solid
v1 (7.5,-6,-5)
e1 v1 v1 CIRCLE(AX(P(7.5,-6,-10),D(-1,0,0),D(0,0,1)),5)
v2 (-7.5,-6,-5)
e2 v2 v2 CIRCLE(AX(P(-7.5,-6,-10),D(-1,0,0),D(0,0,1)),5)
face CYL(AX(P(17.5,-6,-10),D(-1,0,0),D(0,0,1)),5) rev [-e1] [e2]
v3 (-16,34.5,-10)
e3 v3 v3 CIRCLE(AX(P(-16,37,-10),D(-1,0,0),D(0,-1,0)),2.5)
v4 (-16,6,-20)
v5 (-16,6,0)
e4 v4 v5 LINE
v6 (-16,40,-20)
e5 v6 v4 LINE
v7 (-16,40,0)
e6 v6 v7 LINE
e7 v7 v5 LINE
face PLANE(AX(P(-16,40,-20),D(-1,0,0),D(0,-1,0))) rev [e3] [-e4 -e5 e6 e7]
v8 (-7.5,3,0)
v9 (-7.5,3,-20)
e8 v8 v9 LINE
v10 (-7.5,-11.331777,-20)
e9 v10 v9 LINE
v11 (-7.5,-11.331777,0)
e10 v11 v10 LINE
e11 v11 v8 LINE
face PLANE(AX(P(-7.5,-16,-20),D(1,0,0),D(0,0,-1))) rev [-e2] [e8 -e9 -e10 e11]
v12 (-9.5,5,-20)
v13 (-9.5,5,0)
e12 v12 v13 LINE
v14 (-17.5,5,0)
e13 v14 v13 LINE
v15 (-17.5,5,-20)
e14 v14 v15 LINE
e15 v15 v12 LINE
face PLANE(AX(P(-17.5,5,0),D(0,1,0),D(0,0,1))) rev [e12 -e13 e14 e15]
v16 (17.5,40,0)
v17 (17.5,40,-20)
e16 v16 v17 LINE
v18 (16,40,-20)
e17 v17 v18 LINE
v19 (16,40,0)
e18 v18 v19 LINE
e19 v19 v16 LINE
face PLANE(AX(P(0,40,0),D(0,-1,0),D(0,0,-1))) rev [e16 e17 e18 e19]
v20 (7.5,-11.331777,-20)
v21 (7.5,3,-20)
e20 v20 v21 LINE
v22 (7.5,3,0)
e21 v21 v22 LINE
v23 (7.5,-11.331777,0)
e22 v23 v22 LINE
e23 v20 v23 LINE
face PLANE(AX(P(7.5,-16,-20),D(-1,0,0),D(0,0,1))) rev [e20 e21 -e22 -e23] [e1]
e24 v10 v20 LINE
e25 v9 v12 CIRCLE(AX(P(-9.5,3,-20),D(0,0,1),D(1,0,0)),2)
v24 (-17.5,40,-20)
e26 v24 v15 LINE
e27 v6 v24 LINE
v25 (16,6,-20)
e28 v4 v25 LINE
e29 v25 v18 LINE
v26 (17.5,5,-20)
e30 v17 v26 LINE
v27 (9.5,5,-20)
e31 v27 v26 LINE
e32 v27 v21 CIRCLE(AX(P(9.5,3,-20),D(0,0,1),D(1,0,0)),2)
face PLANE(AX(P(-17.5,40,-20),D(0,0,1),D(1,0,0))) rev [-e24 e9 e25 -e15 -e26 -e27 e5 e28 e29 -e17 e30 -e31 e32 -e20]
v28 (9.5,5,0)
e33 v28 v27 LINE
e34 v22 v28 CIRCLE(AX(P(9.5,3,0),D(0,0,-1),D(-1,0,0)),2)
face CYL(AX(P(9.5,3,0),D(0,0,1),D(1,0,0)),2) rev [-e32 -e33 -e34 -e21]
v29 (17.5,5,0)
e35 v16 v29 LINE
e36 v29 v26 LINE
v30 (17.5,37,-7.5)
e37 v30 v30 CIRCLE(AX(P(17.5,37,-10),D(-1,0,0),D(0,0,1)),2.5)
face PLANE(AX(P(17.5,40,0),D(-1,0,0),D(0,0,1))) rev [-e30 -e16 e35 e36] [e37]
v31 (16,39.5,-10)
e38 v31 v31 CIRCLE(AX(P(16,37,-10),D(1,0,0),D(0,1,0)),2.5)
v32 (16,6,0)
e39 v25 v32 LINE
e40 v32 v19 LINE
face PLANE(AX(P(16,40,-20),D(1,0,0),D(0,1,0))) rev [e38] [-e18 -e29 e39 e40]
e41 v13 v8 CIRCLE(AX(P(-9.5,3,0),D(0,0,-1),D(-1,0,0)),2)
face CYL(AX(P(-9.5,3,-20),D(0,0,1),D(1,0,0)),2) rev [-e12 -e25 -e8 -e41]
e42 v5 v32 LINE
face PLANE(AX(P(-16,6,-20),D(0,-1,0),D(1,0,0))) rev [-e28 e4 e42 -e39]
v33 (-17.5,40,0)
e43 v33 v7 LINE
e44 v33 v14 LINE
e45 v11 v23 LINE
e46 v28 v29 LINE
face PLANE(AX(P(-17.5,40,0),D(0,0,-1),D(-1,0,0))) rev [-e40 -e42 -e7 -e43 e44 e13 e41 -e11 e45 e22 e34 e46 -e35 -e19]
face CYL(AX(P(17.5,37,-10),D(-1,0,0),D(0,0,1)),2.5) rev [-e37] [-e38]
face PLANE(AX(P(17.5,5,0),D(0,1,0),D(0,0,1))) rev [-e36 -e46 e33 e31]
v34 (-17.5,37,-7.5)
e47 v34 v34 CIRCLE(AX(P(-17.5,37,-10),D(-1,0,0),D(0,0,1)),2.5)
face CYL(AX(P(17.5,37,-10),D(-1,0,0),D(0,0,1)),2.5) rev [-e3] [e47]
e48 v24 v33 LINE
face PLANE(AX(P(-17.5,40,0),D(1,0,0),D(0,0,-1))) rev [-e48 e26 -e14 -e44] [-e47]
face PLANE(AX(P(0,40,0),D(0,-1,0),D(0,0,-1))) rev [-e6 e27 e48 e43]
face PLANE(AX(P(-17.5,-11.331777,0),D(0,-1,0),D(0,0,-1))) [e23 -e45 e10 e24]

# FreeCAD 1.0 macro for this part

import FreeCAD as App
import Part
import Sketcher
Q = App.Units.Quantity


def edges_at(feature, points):
    """Names of the edges that pass closest to the given points."""
    edges = feature.Shape.Edges
    near = lambda p: min(range(len(edges)), key=lambda i: edges[i].distToShape(Part.Vertex(*p))[0])
    return sorted({f"Edge{near(p) + 1}" for p in points})

doc = App.newDocument("Part")
body = doc.addObject("PartDesign::Body", "Body")

sketch1 = body.newObject("Sketcher::SketchObject", "Sketch")
sketch1.AttachmentSupport = (doc.getObject("XZ_Plane"), [""])
sketch1.MapMode = "FlatFace"
sketch1.addGeometry(Part.LineSegment(App.Vector(-18, -20, 0), App.Vector(-18, 0, 0)), False)
sketch1.addGeometry(Part.LineSegment(App.Vector(-18, 0, 0), App.Vector(18, 0, 0)), False)
sketch1.addGeometry(Part.LineSegment(App.Vector(18, 0, 0), App.Vector(18, -20, 0)), False)
sketch1.addGeometry(Part.LineSegment(App.Vector(18, -20, 0), App.Vector(-18, -20, 0)), False)
sketch1.addConstraint(Sketcher.Constraint("Coincident", 0, 2, 1, 1))
sketch1.addConstraint(Sketcher.Constraint("Coincident", 1, 2, 2, 1))
sketch1.addConstraint(Sketcher.Constraint("Coincident", 2, 2, 3, 1))
sketch1.addConstraint(Sketcher.Constraint("Coincident", 3, 2, 0, 1))
sketch1.addConstraint(Sketcher.Constraint("Vertical", 0))
sketch1.addConstraint(Sketcher.Constraint("Horizontal", 1))
sketch1.addConstraint(Sketcher.Constraint("Vertical", 2))
sketch1.addConstraint(Sketcher.Constraint("Horizontal", 3))
sketch1.addConstraint(Sketcher.Constraint("Symmetric", 0, 2, 1, 2, -1, 1))
sketch1.addConstraint(Sketcher.Constraint("DistanceX", 1, 1, 1, 2, Q("35 mm")))
sketch1.addConstraint(Sketcher.Constraint("DistanceY", 0, 1, 0, 2, Q("20 mm")))
pad1 = body.newObject("PartDesign::Pad", "Pad")
pad1.Profile = sketch1
pad1.Length = 40
pad1.Reversed = True

sketch2 = body.newObject("Sketcher::SketchObject", "Sketch001")
sketch2.AttachmentSupport = (doc.getObject("XZ_Plane"), [""])
sketch2.MapMode = "FlatFace"
sketch2.addGeometry(Part.LineSegment(App.Vector(-8, 0, 0), App.Vector(-8, -20, 0)), False)
sketch2.addGeometry(Part.LineSegment(App.Vector(-8, -20, 0), App.Vector(8, -20, 0)), False)
sketch2.addGeometry(Part.LineSegment(App.Vector(8, -20, 0), App.Vector(8, 0, 0)), False)
sketch2.addGeometry(Part.LineSegment(App.Vector(8, 0, 0), App.Vector(-8, 0, 0)), False)
sketch2.addConstraint(Sketcher.Constraint("Coincident", 0, 2, 1, 1))
sketch2.addConstraint(Sketcher.Constraint("Coincident", 1, 2, 2, 1))
sketch2.addConstraint(Sketcher.Constraint("Coincident", 2, 2, 3, 1))
sketch2.addConstraint(Sketcher.Constraint("Coincident", 3, 2, 0, 1))
sketch2.addConstraint(Sketcher.Constraint("Vertical", 0))
sketch2.addConstraint(Sketcher.Constraint("Horizontal", 1))
sketch2.addConstraint(Sketcher.Constraint("Vertical", 2))
sketch2.addConstraint(Sketcher.Constraint("Horizontal", 3))
sketch2.addConstraint(Sketcher.Constraint("Symmetric", 2, 2, 3, 2, -1, 1))
sketch2.addConstraint(Sketcher.Constraint("DistanceX", 1, 1, 1, 2, Q("15 mm")))
sketch2.addConstraint(Sketcher.Constraint("DistanceY", 0, 2, 0, 1, Q("20 mm")))
pad2 = body.newObject("PartDesign::Pad", "Pad001")
pad2.Profile = sketch2
pad2.Length = 16

sketch3 = body.newObject("Sketcher::SketchObject", "Sketch002")
sketch3.AttachmentSupport = (doc.getObject("YZ_Plane"), [""])
sketch3.MapMode = "FlatFace"
sketch3.AttachmentOffset = App.Placement(App.Vector(0, 0, -7.5), App.Rotation())
sketch3.addGeometry(Part.Circle(App.Vector(-6, -10, 0), App.Vector(0, 0, 1), 5), False)
sketch3.addConstraint(Sketcher.Constraint("Diameter", 0, Q("10 mm")))
sketch3.addConstraint(Sketcher.Constraint("DistanceX", 0, 3, -1, 1, Q("6 mm")))
sketch3.addConstraint(Sketcher.Constraint("DistanceY", 0, 3, -1, 1, Q("10 mm")))
pocket1 = body.newObject("PartDesign::Pocket", "Pocket")
pocket1.Profile = sketch3
pocket1.Type = "ThroughAll"
pocket1.Reversed = True
doc.recompute()

fillet = body.newObject("PartDesign::Fillet", "Fillet")
fillet.Base = (pocket1, edges_at(pocket1, [(7.5, -16, -10), (-7.5, -16, -10)]))
fillet.Radius = 3

sketch4 = body.newObject("Sketcher::SketchObject", "Sketch003")
sketch4.AttachmentSupport = (doc.getObject("XY_Plane"), [""])
sketch4.MapMode = "FlatFace"
sketch4.addGeometry(Part.LineSegment(App.Vector(-16, 40, 0), App.Vector(-16, 6, 0)), False)
sketch4.addGeometry(Part.LineSegment(App.Vector(-16, 6, 0), App.Vector(16, 6, 0)), False)
sketch4.addGeometry(Part.LineSegment(App.Vector(16, 6, 0), App.Vector(16, 40, 0)), False)
sketch4.addGeometry(Part.LineSegment(App.Vector(16, 40, 0), App.Vector(-16, 40, 0)), False)
sketch4.addConstraint(Sketcher.Constraint("Coincident", 0, 2, 1, 1))
sketch4.addConstraint(Sketcher.Constraint("Coincident", 1, 2, 2, 1))
sketch4.addConstraint(Sketcher.Constraint("Coincident", 2, 2, 3, 1))
sketch4.addConstraint(Sketcher.Constraint("Coincident", 3, 2, 0, 1))
sketch4.addConstraint(Sketcher.Constraint("Vertical", 0))
sketch4.addConstraint(Sketcher.Constraint("Horizontal", 1))
sketch4.addConstraint(Sketcher.Constraint("Vertical", 2))
sketch4.addConstraint(Sketcher.Constraint("Horizontal", 3))
sketch4.addConstraint(Sketcher.Constraint("DistanceX", 1, 1, 1, 2, Q("32 mm")))
sketch4.addConstraint(Sketcher.Constraint("DistanceY", 0, 2, 0, 1, Q("34 mm")))
sketch4.addConstraint(Sketcher.Constraint("DistanceX", 0, 2, -1, 1, Q("16 mm")))
sketch4.addConstraint(Sketcher.Constraint("DistanceY", -1, 1, 0, 2, Q("6 mm")))
pocket2 = body.newObject("PartDesign::Pocket", "Pocket001")
pocket2.Profile = sketch4
pocket2.Type = "ThroughAll"

sketch5 = body.newObject("Sketcher::SketchObject", "Sketch004")
sketch5.AttachmentSupport = (doc.getObject("YZ_Plane"), [""])
sketch5.MapMode = "FlatFace"
sketch5.AttachmentOffset = App.Placement(App.Vector(0, 0, -17.5), App.Rotation())
sketch5.addGeometry(Part.Circle(App.Vector(37, -10, 0), App.Vector(0, 0, 1), 2.5), False)
sketch5.addConstraint(Sketcher.Constraint("Diameter", 0, Q("5 mm")))
sketch5.addConstraint(Sketcher.Constraint("DistanceX", -1, 1, 0, 3, Q("37 mm")))
sketch5.addConstraint(Sketcher.Constraint("DistanceY", 0, 3, -1, 1, Q("10 mm")))
pocket3 = body.newObject("PartDesign::Pocket", "Pocket002")
pocket3.Profile = sketch5
pocket3.Type = "ThroughAll"
pocket3.Reversed = True

sketch6 = body.newObject("Sketcher::SketchObject", "Sketch005")
sketch6.AttachmentSupport = (doc.getObject("XY_Plane"), [""])
sketch6.MapMode = "FlatFace"
sketch6.AttachmentOffset = App.Placement(App.Vector(0, 0, -20), App.Rotation())
sketch6.addGeometry(Part.LineSegment(App.Vector(-8, 5, 0), App.Vector(-8, 0, 0)), False)
sketch6.addGeometry(Part.LineSegment(App.Vector(-8, 0, 0), App.Vector(-18, 0, 0)), False)
sketch6.addGeometry(Part.LineSegment(App.Vector(-18, 0, 0), App.Vector(-18, 5, 0)), False)
sketch6.addGeometry(Part.LineSegment(App.Vector(-18, 5, 0), App.Vector(-8, 5, 0)), False)
sketch6.addGeometry(Part.LineSegment(App.Vector(18, 5, 0), App.Vector(18, 0, 0)), False)
sketch6.addGeometry(Part.LineSegment(App.Vector(18, 0, 0), App.Vector(8, 0, 0)), False)
sketch6.addGeometry(Part.LineSegment(App.Vector(8, 0, 0), App.Vector(8, 5, 0)), False)
sketch6.addGeometry(Part.LineSegment(App.Vector(8, 5, 0), App.Vector(18, 5, 0)), False)
sketch6.addConstraint(Sketcher.Constraint("Coincident", 0, 2, 1, 1))
sketch6.addConstraint(Sketcher.Constraint("Coincident", 1, 2, 2, 1))
sketch6.addConstraint(Sketcher.Constraint("Coincident", 2, 2, 3, 1))
sketch6.addConstraint(Sketcher.Constraint("Coincident", 3, 2, 0, 1))
sketch6.addConstraint(Sketcher.Constraint("Coincident", 4, 2, 5, 1))
sketch6.addConstraint(Sketcher.Constraint("Coincident", 5, 2, 6, 1))
sketch6.addConstraint(Sketcher.Constraint("Coincident", 6, 2, 7, 1))
sketch6.addConstraint(Sketcher.Constraint("Coincident", 7, 2, 4, 1))
sketch6.addConstraint(Sketcher.Constraint("Vertical", 0))
sketch6.addConstraint(Sketcher.Constraint("Horizontal", 1))
sketch6.addConstraint(Sketcher.Constraint("Vertical", 2))
sketch6.addConstraint(Sketcher.Constraint("Horizontal", 3))
sketch6.addConstraint(Sketcher.Constraint("Vertical", 4))
sketch6.addConstraint(Sketcher.Constraint("Horizontal", 5))
sketch6.addConstraint(Sketcher.Constraint("Vertical", 6))
sketch6.addConstraint(Sketcher.Constraint("Horizontal", 7))
sketch6.addConstraint(Sketcher.Constraint("Symmetric", 1, 2, 4, 2, -1, 1))
sketch6.addConstraint(Sketcher.Constraint("Symmetric", 0, 2, 5, 2, -2))
sketch6.addConstraint(Sketcher.Constraint("Horizontal", 3, 2, 6, 2))
sketch6.addConstraint(Sketcher.Constraint("DistanceX", 1, 2, 1, 1, Q("10 mm")))
sketch6.addConstraint(Sketcher.Constraint("DistanceY", 0, 2, 0, 1, Q("5 mm")))
sketch6.addConstraint(Sketcher.Constraint("DistanceX", 0, 2, 4, 2, Q("25 mm")))
pocket4 = body.newObject("PartDesign::Pocket", "Pocket003")
pocket4.Profile = sketch6
pocket4.Type = "ThroughAll"
pocket4.Reversed = True
doc.recompute()

fillet2 = body.newObject("PartDesign::Fillet", "Fillet001")
fillet2.Base = (pocket4, edges_at(pocket4, [(7.5, 5, -10), (-7.5, 5, -10)]))
fillet2.Radius = 2

sketch7 = body.newObject("Sketcher::SketchObject", "Sketch006")
sketch7.AttachmentSupport = (doc.getObject("YZ_Plane"), [""])
sketch7.MapMode = "FlatFace"
sketch7.addGeometry(Part.LineSegment(App.Vector(-11.3, 0, 0), App.Vector(-16, 0, 0)), False)
sketch7.addGeometry(Part.LineSegment(App.Vector(-16, 0, 0), App.Vector(-16, -20, 0)), False)
sketch7.addGeometry(Part.LineSegment(App.Vector(-16, -20, 0), App.Vector(-11.3, -20, 0)), False)
sketch7.addGeometry(Part.LineSegment(App.Vector(-11.3, -20, 0), App.Vector(-11.3, 0, 0)), False)
sketch7.addConstraint(Sketcher.Constraint("Coincident", 0, 2, 1, 1))
sketch7.addConstraint(Sketcher.Constraint("Coincident", 1, 2, 2, 1))
sketch7.addConstraint(Sketcher.Constraint("Coincident", 2, 2, 3, 1))
sketch7.addConstraint(Sketcher.Constraint("Coincident", 3, 2, 0, 1))
sketch7.addConstraint(Sketcher.Constraint("Horizontal", 0))
sketch7.addConstraint(Sketcher.Constraint("Vertical", 1))
sketch7.addConstraint(Sketcher.Constraint("Horizontal", 2))
sketch7.addConstraint(Sketcher.Constraint("Vertical", 3))
sketch7.addConstraint(Sketcher.Constraint("PointOnObject", 0, 2, -1))
sketch7.addConstraint(Sketcher.Constraint("DistanceY", 1, 2, 1, 1, Q("20 mm")))
sketch7.addConstraint(Sketcher.Constraint("DistanceX", 0, 2, -1, 1, Q("16 mm")))
sketch7.addConstraint(Sketcher.Constraint("DistanceX", 0, 2, 0, 1, Q("4.668223 mm")))
pocket5 = body.newObject("PartDesign::Pocket", "Pocket004")
pocket5.Profile = sketch7
pocket5.Type = "ThroughAll"
pocket5.Midplane = True

doc.recompute()
